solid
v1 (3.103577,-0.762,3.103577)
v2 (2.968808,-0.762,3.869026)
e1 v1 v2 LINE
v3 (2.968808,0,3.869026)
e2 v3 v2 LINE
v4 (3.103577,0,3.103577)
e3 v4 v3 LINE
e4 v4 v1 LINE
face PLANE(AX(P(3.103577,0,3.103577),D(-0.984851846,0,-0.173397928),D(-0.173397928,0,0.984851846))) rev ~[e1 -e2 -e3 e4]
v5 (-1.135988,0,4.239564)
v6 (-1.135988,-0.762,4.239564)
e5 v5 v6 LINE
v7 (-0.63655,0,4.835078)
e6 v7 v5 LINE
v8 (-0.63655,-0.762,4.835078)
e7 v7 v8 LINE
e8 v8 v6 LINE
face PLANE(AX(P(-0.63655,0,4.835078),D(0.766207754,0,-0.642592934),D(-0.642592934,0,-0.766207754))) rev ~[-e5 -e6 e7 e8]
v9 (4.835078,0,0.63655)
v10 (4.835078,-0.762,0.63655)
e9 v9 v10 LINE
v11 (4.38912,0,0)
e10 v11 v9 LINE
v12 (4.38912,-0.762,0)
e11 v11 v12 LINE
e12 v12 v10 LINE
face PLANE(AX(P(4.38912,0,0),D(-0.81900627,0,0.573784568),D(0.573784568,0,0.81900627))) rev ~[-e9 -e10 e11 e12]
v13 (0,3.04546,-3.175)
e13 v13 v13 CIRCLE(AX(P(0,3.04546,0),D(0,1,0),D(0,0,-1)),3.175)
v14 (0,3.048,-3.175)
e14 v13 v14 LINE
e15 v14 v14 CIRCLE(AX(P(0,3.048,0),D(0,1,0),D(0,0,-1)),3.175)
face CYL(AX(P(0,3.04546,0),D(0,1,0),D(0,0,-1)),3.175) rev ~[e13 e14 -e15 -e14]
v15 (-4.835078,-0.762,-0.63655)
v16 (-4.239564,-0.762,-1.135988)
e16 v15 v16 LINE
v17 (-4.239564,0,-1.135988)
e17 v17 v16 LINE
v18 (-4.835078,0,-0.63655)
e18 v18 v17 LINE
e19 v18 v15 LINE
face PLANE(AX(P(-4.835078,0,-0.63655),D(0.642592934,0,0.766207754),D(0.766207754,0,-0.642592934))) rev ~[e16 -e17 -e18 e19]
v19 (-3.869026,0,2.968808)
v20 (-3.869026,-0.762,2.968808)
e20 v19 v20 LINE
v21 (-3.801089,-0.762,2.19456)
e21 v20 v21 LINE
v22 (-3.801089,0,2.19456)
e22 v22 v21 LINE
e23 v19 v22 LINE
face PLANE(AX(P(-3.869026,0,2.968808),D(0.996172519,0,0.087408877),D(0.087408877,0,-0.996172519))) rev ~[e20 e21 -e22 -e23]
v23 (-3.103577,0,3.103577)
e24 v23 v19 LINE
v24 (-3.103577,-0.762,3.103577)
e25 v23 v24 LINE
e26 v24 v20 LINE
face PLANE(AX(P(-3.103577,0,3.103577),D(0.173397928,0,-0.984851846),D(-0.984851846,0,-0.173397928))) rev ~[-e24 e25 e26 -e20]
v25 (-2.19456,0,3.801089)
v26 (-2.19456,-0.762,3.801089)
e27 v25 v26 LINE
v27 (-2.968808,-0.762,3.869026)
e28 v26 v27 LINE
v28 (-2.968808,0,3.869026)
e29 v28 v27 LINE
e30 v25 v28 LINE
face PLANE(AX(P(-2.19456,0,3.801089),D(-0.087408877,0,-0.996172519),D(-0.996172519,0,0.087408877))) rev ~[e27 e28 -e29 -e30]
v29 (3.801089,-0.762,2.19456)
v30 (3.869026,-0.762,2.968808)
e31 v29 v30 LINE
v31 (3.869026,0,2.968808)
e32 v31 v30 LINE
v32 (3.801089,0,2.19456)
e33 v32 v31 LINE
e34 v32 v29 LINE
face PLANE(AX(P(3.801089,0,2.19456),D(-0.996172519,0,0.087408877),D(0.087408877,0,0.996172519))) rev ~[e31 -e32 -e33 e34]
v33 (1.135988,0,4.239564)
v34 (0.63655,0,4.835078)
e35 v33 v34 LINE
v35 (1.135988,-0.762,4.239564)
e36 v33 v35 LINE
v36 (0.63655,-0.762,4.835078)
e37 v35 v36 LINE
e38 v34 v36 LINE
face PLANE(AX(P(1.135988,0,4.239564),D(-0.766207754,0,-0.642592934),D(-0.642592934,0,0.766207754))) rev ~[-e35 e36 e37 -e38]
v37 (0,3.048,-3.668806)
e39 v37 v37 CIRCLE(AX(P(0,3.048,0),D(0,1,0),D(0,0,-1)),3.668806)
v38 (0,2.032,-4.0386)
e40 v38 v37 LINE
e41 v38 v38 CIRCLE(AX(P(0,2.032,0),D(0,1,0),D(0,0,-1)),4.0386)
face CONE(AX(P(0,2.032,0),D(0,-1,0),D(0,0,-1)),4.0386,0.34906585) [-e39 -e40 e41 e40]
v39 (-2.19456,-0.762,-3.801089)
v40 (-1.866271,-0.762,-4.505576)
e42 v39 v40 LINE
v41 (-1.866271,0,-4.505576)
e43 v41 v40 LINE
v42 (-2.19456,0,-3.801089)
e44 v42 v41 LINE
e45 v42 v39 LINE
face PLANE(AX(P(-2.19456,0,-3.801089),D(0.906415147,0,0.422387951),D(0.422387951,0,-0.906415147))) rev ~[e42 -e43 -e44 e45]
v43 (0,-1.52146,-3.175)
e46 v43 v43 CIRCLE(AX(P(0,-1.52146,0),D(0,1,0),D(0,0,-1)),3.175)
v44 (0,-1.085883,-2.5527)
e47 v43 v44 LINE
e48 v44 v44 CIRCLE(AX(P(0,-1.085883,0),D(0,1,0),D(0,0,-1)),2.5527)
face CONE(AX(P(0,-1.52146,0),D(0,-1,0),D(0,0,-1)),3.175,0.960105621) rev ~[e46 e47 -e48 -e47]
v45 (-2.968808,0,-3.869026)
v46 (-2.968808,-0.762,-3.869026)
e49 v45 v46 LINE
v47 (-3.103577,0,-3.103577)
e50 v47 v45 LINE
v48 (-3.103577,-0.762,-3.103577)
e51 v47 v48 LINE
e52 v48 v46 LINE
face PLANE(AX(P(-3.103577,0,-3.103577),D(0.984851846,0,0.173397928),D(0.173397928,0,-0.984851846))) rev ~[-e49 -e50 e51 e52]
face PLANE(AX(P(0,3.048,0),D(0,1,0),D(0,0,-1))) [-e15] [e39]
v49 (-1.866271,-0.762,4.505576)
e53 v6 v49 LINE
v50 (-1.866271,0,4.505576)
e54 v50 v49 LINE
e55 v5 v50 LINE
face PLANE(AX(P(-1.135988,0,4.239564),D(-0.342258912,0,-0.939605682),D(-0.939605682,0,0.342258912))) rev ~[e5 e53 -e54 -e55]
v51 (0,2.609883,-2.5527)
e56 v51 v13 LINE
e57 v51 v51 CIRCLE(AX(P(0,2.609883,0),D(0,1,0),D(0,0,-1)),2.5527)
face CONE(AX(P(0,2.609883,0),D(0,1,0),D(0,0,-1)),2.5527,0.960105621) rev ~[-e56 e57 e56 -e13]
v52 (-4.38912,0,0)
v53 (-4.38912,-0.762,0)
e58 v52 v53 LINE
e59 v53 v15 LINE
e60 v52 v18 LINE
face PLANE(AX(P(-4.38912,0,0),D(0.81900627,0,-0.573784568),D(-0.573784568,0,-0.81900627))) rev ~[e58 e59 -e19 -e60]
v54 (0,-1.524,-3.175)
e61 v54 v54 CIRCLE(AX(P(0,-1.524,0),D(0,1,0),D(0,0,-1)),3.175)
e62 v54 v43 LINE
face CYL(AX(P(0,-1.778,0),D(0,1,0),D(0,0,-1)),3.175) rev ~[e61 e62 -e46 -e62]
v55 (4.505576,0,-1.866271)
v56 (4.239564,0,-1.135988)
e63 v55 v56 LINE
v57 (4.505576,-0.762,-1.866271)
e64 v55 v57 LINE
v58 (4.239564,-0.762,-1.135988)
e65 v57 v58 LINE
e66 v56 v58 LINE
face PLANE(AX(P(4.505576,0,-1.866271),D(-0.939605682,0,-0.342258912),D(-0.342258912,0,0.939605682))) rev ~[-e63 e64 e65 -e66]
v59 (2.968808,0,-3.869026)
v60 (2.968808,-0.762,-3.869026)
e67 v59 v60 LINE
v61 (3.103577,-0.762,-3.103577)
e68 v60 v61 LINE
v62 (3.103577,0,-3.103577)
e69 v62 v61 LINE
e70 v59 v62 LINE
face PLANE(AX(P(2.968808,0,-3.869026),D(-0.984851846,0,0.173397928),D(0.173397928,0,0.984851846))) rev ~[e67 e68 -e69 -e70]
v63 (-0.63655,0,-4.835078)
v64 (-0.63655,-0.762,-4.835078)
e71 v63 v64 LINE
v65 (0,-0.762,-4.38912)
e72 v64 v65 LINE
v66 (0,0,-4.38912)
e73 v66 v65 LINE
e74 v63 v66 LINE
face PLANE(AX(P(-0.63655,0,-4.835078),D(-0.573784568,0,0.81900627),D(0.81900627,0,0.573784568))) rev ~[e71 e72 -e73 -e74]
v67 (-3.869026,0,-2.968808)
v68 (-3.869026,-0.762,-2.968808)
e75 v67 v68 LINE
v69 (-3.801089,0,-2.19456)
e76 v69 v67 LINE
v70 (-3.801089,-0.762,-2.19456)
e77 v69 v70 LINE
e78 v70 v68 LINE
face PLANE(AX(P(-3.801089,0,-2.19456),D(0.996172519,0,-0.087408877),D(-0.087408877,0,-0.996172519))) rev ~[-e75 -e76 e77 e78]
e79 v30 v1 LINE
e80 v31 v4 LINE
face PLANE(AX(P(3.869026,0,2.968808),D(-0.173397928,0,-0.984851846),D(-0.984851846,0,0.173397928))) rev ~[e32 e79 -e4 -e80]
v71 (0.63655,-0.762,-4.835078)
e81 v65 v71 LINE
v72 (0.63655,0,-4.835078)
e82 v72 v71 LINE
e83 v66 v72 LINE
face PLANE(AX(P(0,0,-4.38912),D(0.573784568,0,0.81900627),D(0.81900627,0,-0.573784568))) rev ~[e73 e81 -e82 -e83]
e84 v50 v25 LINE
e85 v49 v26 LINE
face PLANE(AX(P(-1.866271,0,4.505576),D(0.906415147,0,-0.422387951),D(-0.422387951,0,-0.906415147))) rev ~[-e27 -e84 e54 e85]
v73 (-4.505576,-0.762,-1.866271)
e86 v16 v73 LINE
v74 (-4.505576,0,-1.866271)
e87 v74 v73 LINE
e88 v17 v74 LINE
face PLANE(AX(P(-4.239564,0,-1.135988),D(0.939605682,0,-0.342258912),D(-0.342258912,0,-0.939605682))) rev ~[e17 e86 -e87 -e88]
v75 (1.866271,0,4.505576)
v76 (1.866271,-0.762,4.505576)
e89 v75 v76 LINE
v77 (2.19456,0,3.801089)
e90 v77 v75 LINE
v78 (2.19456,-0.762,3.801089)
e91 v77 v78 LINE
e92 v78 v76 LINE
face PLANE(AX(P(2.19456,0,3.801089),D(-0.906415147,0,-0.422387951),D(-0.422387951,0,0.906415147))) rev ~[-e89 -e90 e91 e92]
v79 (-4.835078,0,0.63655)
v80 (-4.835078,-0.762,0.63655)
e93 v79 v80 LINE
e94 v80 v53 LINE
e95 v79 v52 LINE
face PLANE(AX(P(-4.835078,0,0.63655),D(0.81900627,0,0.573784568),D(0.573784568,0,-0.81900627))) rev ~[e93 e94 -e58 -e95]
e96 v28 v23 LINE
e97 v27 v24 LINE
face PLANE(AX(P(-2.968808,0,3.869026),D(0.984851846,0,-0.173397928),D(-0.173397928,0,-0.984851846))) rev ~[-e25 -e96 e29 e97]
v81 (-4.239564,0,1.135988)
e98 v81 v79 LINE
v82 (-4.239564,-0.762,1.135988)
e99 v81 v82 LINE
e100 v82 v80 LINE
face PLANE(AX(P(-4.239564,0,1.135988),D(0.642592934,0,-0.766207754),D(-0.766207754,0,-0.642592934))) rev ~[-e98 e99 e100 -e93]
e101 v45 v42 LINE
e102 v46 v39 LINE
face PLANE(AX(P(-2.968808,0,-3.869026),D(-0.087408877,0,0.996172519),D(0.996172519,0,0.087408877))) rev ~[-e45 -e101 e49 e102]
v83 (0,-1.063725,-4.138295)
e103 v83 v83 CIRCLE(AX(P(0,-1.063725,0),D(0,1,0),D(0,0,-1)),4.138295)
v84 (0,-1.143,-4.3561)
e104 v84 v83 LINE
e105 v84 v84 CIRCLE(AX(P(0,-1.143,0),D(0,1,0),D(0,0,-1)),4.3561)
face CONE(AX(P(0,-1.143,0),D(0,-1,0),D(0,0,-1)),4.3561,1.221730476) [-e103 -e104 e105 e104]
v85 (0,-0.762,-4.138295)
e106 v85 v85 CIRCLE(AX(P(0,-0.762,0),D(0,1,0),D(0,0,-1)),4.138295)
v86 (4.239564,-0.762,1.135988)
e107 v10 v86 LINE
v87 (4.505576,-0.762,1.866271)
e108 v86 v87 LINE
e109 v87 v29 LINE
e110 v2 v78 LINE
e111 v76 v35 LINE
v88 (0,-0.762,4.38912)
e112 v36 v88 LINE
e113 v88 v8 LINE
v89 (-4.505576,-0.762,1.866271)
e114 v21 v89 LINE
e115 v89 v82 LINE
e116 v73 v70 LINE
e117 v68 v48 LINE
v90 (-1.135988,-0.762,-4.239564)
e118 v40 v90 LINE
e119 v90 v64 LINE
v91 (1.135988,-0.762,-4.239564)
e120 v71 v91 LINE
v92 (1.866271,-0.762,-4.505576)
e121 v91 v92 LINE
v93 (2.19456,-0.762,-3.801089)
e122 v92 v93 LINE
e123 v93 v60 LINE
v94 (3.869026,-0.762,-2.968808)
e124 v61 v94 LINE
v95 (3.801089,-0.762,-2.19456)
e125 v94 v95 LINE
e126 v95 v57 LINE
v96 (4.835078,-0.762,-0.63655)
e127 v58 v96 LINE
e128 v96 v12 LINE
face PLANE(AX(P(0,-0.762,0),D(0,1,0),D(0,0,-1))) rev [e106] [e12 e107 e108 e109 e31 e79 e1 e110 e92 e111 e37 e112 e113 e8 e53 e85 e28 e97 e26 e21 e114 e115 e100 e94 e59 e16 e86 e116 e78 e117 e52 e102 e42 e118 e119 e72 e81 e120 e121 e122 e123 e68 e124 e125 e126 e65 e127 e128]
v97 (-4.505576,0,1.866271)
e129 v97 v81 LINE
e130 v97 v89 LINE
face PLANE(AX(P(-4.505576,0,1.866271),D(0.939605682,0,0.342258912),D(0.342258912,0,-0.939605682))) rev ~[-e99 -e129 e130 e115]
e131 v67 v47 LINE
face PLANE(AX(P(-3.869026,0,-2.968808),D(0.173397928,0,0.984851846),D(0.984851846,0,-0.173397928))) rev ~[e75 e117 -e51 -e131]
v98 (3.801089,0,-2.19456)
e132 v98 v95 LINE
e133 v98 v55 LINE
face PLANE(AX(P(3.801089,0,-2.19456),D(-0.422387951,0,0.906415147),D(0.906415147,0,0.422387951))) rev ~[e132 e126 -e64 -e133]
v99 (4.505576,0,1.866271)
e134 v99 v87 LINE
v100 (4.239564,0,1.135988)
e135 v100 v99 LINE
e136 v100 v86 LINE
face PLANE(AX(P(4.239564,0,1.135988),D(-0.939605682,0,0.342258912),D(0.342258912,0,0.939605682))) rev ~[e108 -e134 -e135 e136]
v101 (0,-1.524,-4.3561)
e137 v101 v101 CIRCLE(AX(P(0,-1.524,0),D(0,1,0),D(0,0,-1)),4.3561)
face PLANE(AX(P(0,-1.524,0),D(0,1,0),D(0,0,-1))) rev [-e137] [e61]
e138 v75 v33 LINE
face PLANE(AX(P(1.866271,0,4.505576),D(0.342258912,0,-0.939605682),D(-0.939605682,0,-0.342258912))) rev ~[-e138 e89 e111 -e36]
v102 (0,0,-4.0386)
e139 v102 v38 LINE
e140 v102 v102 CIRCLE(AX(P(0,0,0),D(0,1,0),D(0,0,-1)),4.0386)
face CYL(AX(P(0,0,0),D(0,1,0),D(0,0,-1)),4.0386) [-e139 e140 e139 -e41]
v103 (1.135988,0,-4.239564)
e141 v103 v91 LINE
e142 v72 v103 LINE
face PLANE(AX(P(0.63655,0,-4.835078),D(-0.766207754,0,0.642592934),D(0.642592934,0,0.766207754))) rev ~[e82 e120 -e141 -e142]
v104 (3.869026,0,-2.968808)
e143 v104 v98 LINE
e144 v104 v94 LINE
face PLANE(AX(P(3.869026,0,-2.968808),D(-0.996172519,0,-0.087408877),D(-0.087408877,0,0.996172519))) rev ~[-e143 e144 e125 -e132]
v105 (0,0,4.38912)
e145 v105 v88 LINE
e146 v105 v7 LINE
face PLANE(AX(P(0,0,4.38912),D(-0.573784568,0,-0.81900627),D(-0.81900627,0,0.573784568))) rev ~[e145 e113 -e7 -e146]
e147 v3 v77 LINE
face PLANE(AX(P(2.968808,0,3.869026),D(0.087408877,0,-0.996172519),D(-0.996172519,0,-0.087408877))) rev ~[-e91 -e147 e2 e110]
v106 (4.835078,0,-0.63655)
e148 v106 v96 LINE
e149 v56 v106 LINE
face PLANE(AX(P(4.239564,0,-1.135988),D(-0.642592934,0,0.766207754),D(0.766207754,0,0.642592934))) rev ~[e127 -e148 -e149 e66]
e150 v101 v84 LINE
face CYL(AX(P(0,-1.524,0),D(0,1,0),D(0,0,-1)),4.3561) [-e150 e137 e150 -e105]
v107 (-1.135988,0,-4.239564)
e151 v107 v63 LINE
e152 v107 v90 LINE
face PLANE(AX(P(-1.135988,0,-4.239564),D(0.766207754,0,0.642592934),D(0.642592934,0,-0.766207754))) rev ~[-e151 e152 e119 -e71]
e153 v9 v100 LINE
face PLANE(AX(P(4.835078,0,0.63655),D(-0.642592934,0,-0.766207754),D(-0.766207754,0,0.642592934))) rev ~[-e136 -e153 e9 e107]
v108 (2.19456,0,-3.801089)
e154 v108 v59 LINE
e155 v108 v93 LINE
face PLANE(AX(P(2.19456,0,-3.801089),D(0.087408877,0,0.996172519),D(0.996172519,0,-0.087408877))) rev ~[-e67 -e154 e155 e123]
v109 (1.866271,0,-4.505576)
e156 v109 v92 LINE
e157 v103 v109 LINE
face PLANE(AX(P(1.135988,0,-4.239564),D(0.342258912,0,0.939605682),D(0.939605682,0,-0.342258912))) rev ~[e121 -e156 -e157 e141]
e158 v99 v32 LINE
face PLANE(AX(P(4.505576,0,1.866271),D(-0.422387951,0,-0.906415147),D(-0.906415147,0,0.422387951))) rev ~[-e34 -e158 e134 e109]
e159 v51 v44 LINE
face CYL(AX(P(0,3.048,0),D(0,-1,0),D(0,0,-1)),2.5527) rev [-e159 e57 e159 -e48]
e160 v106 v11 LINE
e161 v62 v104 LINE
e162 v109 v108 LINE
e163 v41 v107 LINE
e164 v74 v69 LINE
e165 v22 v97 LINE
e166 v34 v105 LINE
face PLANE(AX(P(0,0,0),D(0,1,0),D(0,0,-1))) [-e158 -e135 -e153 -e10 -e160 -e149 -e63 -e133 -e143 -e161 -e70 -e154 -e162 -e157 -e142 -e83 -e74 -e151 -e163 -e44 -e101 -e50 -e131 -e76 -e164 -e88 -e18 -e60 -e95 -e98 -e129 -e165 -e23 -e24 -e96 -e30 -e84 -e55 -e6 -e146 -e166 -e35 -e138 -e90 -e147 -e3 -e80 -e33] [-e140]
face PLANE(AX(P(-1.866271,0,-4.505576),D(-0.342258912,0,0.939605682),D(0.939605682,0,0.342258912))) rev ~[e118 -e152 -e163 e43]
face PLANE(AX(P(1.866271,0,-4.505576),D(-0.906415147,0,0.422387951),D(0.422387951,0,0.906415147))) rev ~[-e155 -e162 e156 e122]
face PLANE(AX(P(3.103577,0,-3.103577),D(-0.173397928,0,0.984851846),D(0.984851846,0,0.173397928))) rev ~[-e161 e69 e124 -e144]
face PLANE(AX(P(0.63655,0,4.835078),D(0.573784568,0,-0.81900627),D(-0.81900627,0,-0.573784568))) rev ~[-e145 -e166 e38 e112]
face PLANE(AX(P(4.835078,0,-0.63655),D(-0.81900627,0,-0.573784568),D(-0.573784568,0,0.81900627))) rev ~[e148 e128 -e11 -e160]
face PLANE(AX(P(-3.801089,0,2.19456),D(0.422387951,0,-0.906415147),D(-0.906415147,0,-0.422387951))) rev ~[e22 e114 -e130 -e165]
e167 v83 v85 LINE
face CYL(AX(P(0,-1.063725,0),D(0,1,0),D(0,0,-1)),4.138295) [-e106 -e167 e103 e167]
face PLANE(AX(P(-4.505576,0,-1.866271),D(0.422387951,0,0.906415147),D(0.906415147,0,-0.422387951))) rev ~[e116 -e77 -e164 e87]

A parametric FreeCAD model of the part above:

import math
import FreeCAD as App
import Part
import Sketcher
from FreeCAD import Vector
Q = App.Units.Quantity


def add_polygon(sketch, points):
    """Adds a closed chain of lines whose ends are joined by coincident constraints."""
    first, n = sketch.GeometryCount, len(points)
    for a, b in zip(points, points[1:] + points[:1]):
        sketch.addGeometry(Part.LineSegment(App.Vector(*a, 0), App.Vector(*b, 0)), False)
    for i in range(n):
        sketch.addConstraint(Sketcher.Constraint("Coincident", first + i, 2, first + (i + 1) % n, 1))

doc = App.newDocument("Part")
params = doc.addObject("Spreadsheet::Sheet", "Params")
for row, (alias, value) in enumerate([
    ("sketch1_height", "0.03 in"),
    ("sketch1_height2", "0.08 in"),
    ("sketch1_height3", "0.18 in"),
    ("sketch1_width", "0.033 in"),
    ("sketch1_width2", "0.071 in"),
    ("revolution_angle", "360 deg"),
    ("groove_angle", "360 deg"),
    ("sketch3_radius", "0.192 in"),
    ("pocket1_length", "0.03 in"),
], start=1):
    params.set(f"A{row}", alias)
    params.set(f"B{row}", "=" + value)
    params.setAlias(f"B{row}", alias)

body = doc.addObject("PartDesign::Body", "Body")

sketch1 = body.newObject("Sketcher::SketchObject", "Sketch")
sketch1.AttachmentSupport = (doc.getObject("XY_Plane"), [""])
sketch1.MapMode = "FlatFace"
add_polygon(sketch1, [(4.14, -1.06), (4.14, -0.76), (4.88, -0.76), (4.88, 0), (4.04, 0), (4.04, 2.03), (3.67, 3.05), (2.55, 3.05), (2.55, -1.52), (4.36, -1.52), (4.36, -1.14)])
sketch1.addConstraint(Sketcher.Constraint("Vertical", 0))
sketch1.addConstraint(Sketcher.Constraint("Horizontal", 1))
sketch1.addConstraint(Sketcher.Constraint("Vertical", 2))
sketch1.addConstraint(Sketcher.Constraint("Horizontal", 3))
sketch1.addConstraint(Sketcher.Constraint("Vertical", 4))
sketch1.addConstraint(Sketcher.Constraint("Horizontal", 6))
sketch1.addConstraint(Sketcher.Constraint("Vertical", 7))
sketch1.addConstraint(Sketcher.Constraint("Horizontal", 8))
sketch1.addConstraint(Sketcher.Constraint("Vertical", 9))
sketch1.addConstraint(Sketcher.Constraint("PointOnObject", 2, 2, -1))
sketch1.addConstraint(Sketcher.Constraint("Angle", 5, Q("110 deg")))
sketch1.addConstraint(Sketcher.Constraint("Angle", 10, Q("160 deg")))
sketch1.addConstraint(Sketcher.Constraint("DistanceY", 2, 1, 2, 2, Q("0.03 in")))
sketch1.addConstraint(Sketcher.Constraint("DistanceY", 4, 1, 4, 2, Q("0.08 in")))
sketch1.addConstraint(Sketcher.Constraint("DistanceY", 7, 2, 7, 1, Q("0.18 in")))
sketch1.addConstraint(Sketcher.Constraint("DistanceX", 3, 2, 3, 1, Q("0.033 in")))
sketch1.addConstraint(Sketcher.Constraint("DistanceX", 8, 1, 8, 2, Q("0.071 in")))
sketch1.addConstraint(Sketcher.Constraint("DistanceY", 9, 1, 9, 2, Q("0.015 in")))
sketch1.addConstraint(Sketcher.Constraint("DistanceY", -1, 1, 5, 2, Q("0.12 in")))
sketch1.addConstraint(Sketcher.Constraint("DistanceX", -1, 1, 1, 2, Q("0.192 in")))
sketch1.addConstraint(Sketcher.Constraint("DistanceX", -1, 1, 6, 2, Q("0.1005 in")))
sketch1.addConstraint(Sketcher.Constraint("DistanceX", 1, 1, 1, 2, Q("0.738505 mm")))
sketch1.setExpression("Constraints[23]", "Params.sketch1_height")
sketch1.setExpression("Constraints[24]", "Params.sketch1_height2")
sketch1.setExpression("Constraints[25]", "Params.sketch1_height3")
sketch1.setExpression("Constraints[26]", "Params.sketch1_width")
sketch1.setExpression("Constraints[27]", "Params.sketch1_width2")
revolution = body.newObject("PartDesign::Revolution", "Revolution")
revolution.Profile = sketch1
revolution.ReferenceAxis = (sketch1, ["V_Axis"])
revolution.setExpression("Angle", "Params.revolution_angle")

sketch2 = body.newObject("Sketcher::SketchObject", "Sketch001")
sketch2.AttachmentSupport = (doc.getObject("XY_Plane"), [""])
sketch2.MapMode = "FlatFace"
add_polygon(sketch2, [(3.17, -1.78), (3.17, -1.52), (2.55, -1.09), (2.55, -1.78)])
add_polygon(sketch2, [(3.17, 3.05), (3.17, 3.3), (2.55, 3.3), (2.55, 2.61)])
sketch2.addConstraint(Sketcher.Constraint("Vertical", 0))
sketch2.addConstraint(Sketcher.Constraint("Vertical", 2))
sketch2.addConstraint(Sketcher.Constraint("Horizontal", 3))
sketch2.addConstraint(Sketcher.Constraint("Vertical", 4))
sketch2.addConstraint(Sketcher.Constraint("Horizontal", 5))
sketch2.addConstraint(Sketcher.Constraint("Vertical", 6))
sketch2.addConstraint(Sketcher.Constraint("Vertical", 3, 2, 4, 2))
sketch2.addConstraint(Sketcher.Constraint("Vertical", 2, 2, 5, 2))
sketch2.addConstraint(Sketcher.Constraint("Equal", 0, 4))
sketch2.addConstraint(Sketcher.Constraint("Equal", 2, 6))
sketch2.addConstraint(Sketcher.Constraint("DistanceY", 3, 2, 4, 2, Q("0.2 in")))
sketch2.addConstraint(Sketcher.Constraint("DistanceY", 2, 2, -1, 1, Q("0.07 in")))
sketch2.addConstraint(Sketcher.Constraint("Angle", 1, Q("145.01 deg")))
sketch2.addConstraint(Sketcher.Constraint("DistanceX", 3, 1, 3, 2, Q("0.0245 in")))
sketch2.addConstraint(Sketcher.Constraint("DistanceY", 0, 1, 0, 2, Q("0.0101 in")))
sketch2.addConstraint(Sketcher.Constraint("DistanceX", -1, 1, 0, 2, Q("0.125 in")))
groove = body.newObject("PartDesign::Groove", "Groove")
groove.Profile = sketch2
groove.ReferenceAxis = (sketch2, ["V_Axis"])
groove.setExpression("Angle", "Params.groove_angle")

sketch3 = body.newObject("Sketcher::SketchObject", "Sketch002")
sketch3.AttachmentSupport = (doc.getObject("XZ_Plane"), [""])
sketch3.MapMode = "FlatFace"
sketch3.addGeometry(Part.LineSegment(Vector(0, 4.4, 0), Vector(0.6, 4.8, 0)), False)
sketch3.addGeometry(Part.ArcOfCircle(Part.Circle(Vector(0, 0, 0), Vector(0, 0, 1), 4.9), math.radians(82.5), math.radians(97.5)), False)
sketch3.addGeometry(Part.LineSegment(Vector(-0.6, 4.8, 0), Vector(0, 4.4, 0)), False)
sketch3.addConstraint(Sketcher.Constraint("Coincident", 0, 2, 1, 1))
sketch3.addConstraint(Sketcher.Constraint("Coincident", 1, 2, 2, 1))
sketch3.addConstraint(Sketcher.Constraint("Coincident", 2, 2, 0, 1))
sketch3.addConstraint(Sketcher.Constraint("Coincident", 1, 3, -1, 1))
sketch3.addConstraint(Sketcher.Constraint("PointOnObject", 2, 2, -2))
sketch3.addConstraint(Sketcher.Constraint("Horizontal", 0, 2, 1, 2))
sketch3.addConstraint(Sketcher.Constraint("Radius", 1, Q("0.192 in")))
sketch3.addConstraint(Sketcher.Constraint("DistanceY", -1, 1, 2, 2, Q("0.1728 in")))
sketch3.addConstraint(Sketcher.Constraint("DistanceX", 1, 2, 0, 2, Q("1.2731 mm")))
sketch3.setExpression("Constraints[6]", "Params.sketch3_radius")
pocket1 = body.newObject("PartDesign::Pocket", "Pocket")
pocket1.Profile = sketch3
pocket1.setExpression("Length", "Params.pocket1_length")
pocket1.Reversed = True
doc.recompute()

polarpattern = body.newObject("PartDesign::PolarPattern", "PolarPattern")
polarpattern.Originals = [pocket1]
polarpattern.Axis = (doc.getObject("Y_Axis"), [""])
polarpattern.Angle = 360
polarpattern.Occurrences = 24
body.Tip = polarpattern

doc.recompute()
